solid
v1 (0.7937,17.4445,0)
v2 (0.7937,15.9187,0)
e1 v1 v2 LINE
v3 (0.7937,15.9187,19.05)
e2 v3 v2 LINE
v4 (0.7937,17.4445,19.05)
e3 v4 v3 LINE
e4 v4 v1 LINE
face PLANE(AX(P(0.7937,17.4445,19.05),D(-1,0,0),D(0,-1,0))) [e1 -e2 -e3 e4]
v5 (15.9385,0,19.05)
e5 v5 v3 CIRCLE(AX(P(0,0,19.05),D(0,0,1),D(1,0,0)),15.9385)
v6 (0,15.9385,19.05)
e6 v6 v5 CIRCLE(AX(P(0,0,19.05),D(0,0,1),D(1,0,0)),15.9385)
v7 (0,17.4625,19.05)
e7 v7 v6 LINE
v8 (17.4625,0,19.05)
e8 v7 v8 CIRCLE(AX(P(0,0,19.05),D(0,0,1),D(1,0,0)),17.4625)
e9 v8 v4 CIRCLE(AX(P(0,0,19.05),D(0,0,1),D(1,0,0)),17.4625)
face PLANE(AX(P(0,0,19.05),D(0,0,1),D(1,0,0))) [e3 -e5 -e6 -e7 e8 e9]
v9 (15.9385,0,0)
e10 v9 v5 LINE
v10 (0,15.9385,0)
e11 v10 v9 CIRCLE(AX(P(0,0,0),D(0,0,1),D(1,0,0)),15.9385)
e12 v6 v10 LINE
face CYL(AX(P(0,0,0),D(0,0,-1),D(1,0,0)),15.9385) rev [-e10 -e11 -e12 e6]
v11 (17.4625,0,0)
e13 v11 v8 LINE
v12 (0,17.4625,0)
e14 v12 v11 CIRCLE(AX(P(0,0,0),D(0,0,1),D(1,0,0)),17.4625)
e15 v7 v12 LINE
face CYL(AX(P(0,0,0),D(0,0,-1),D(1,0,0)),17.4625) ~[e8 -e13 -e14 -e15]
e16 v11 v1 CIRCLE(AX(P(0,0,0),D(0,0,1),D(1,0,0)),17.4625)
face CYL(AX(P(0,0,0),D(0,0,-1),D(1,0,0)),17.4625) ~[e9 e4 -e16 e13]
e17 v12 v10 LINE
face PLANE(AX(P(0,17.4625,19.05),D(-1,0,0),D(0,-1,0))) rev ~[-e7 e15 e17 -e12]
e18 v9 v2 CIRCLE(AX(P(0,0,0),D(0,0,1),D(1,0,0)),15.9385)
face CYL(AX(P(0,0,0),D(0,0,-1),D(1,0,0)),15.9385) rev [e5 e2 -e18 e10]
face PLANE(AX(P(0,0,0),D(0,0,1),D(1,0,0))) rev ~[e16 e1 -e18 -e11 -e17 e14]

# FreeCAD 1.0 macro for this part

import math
import FreeCAD as App
import Part
import Sketcher
from FreeCAD import Vector
Q = App.Units.Quantity

doc = App.newDocument("Part")
body = doc.addObject("PartDesign::Body", "Body")

sketch1 = body.newObject("Sketcher::SketchObject", "Sketch")
sketch1.AttachmentSupport = (doc.getObject("XY_Plane"), [""])
sketch1.MapMode = "FlatFace"
sketch1.addGeometry(Part.Circle(Vector(0, 0, 0), Vector(0, 0, 1), 17), False)
sketch1.addGeometry(Part.Circle(Vector(0, 0, 0), Vector(0, 0, 1), 16), False)
sketch1.addConstraint(Sketcher.Constraint("Coincident", 0, 3, -1, 1))
sketch1.addConstraint(Sketcher.Constraint("Coincident", 1, 3, -1, 1))
sketch1.addConstraint(Sketcher.Constraint("Diameter", 0, Q("1.375 in")))
sketch1.addConstraint(Sketcher.Constraint("Diameter", 1, Q("1.255 in")))
pad1 = body.newObject("PartDesign::Pad", "Pad")
pad1.Profile = sketch1
pad1.Length = Q("0.75 in")

sketch2 = body.newObject("Sketcher::SketchObject", "Sketch001")
sketch2.AttachmentSupport = (doc.getObject("XY_Plane"), [""])
sketch2.MapMode = "FlatFace"
sketch2.AttachmentOffset = App.Placement(Vector(0, 0, 0.75 * 25.4), App.Rotation())
sketch2.addGeometry(Part.LineSegment(Vector(0.8, 15.9, 0), Vector(0.8, 17.4, 0)), False)
sketch2.addGeometry(Part.ArcOfCircle(Part.Circle(Vector(0, 0, 0), Vector(0, 0, 1), 17.5), math.radians(87.39), math.radians(90)), False)
sketch2.addGeometry(Part.LineSegment(Vector(0, 17.5, 0), Vector(0, 15.9, 0)), False)
sketch2.addGeometry(Part.ArcOfCircle(Part.Circle(Vector(0, 0, 0), Vector(0, 0, 1), 15.9), math.radians(87.15), math.radians(90)), False)
sketch2.addConstraint(Sketcher.Constraint("Coincident", 0, 2, 1, 1))
sketch2.addConstraint(Sketcher.Constraint("Coincident", 1, 2, 2, 1))
sketch2.addConstraint(Sketcher.Constraint("Coincident", 2, 2, 3, 2))
sketch2.addConstraint(Sketcher.Constraint("Coincident", 3, 1, 0, 1))
sketch2.addConstraint(Sketcher.Constraint("Vertical", 0))
sketch2.addConstraint(Sketcher.Constraint("Vertical", 2))
sketch2.addConstraint(Sketcher.Constraint("Coincident", 1, 3, -1, 1))
sketch2.addConstraint(Sketcher.Constraint("Coincident", 3, 3, -1, 1))
sketch2.addConstraint(Sketcher.Constraint("PointOnObject", 1, 2, -2))
sketch2.addConstraint(Sketcher.Constraint("DistanceX", -1, 1, 0, 2, Q("0.031248 in")))
sketch2.addConstraint(Sketcher.Constraint("Radius", 1, Q("0.6875 in")))
sketch2.addConstraint(Sketcher.Constraint("DistanceY", 2, 2, 2, 1, Q("0.06 in")))
pocket1 = body.newObject("PartDesign::Pocket", "Pocket")
pocket1.Profile = sketch2
pocket1.Length = Q("0.75 in")

doc.recompute()
